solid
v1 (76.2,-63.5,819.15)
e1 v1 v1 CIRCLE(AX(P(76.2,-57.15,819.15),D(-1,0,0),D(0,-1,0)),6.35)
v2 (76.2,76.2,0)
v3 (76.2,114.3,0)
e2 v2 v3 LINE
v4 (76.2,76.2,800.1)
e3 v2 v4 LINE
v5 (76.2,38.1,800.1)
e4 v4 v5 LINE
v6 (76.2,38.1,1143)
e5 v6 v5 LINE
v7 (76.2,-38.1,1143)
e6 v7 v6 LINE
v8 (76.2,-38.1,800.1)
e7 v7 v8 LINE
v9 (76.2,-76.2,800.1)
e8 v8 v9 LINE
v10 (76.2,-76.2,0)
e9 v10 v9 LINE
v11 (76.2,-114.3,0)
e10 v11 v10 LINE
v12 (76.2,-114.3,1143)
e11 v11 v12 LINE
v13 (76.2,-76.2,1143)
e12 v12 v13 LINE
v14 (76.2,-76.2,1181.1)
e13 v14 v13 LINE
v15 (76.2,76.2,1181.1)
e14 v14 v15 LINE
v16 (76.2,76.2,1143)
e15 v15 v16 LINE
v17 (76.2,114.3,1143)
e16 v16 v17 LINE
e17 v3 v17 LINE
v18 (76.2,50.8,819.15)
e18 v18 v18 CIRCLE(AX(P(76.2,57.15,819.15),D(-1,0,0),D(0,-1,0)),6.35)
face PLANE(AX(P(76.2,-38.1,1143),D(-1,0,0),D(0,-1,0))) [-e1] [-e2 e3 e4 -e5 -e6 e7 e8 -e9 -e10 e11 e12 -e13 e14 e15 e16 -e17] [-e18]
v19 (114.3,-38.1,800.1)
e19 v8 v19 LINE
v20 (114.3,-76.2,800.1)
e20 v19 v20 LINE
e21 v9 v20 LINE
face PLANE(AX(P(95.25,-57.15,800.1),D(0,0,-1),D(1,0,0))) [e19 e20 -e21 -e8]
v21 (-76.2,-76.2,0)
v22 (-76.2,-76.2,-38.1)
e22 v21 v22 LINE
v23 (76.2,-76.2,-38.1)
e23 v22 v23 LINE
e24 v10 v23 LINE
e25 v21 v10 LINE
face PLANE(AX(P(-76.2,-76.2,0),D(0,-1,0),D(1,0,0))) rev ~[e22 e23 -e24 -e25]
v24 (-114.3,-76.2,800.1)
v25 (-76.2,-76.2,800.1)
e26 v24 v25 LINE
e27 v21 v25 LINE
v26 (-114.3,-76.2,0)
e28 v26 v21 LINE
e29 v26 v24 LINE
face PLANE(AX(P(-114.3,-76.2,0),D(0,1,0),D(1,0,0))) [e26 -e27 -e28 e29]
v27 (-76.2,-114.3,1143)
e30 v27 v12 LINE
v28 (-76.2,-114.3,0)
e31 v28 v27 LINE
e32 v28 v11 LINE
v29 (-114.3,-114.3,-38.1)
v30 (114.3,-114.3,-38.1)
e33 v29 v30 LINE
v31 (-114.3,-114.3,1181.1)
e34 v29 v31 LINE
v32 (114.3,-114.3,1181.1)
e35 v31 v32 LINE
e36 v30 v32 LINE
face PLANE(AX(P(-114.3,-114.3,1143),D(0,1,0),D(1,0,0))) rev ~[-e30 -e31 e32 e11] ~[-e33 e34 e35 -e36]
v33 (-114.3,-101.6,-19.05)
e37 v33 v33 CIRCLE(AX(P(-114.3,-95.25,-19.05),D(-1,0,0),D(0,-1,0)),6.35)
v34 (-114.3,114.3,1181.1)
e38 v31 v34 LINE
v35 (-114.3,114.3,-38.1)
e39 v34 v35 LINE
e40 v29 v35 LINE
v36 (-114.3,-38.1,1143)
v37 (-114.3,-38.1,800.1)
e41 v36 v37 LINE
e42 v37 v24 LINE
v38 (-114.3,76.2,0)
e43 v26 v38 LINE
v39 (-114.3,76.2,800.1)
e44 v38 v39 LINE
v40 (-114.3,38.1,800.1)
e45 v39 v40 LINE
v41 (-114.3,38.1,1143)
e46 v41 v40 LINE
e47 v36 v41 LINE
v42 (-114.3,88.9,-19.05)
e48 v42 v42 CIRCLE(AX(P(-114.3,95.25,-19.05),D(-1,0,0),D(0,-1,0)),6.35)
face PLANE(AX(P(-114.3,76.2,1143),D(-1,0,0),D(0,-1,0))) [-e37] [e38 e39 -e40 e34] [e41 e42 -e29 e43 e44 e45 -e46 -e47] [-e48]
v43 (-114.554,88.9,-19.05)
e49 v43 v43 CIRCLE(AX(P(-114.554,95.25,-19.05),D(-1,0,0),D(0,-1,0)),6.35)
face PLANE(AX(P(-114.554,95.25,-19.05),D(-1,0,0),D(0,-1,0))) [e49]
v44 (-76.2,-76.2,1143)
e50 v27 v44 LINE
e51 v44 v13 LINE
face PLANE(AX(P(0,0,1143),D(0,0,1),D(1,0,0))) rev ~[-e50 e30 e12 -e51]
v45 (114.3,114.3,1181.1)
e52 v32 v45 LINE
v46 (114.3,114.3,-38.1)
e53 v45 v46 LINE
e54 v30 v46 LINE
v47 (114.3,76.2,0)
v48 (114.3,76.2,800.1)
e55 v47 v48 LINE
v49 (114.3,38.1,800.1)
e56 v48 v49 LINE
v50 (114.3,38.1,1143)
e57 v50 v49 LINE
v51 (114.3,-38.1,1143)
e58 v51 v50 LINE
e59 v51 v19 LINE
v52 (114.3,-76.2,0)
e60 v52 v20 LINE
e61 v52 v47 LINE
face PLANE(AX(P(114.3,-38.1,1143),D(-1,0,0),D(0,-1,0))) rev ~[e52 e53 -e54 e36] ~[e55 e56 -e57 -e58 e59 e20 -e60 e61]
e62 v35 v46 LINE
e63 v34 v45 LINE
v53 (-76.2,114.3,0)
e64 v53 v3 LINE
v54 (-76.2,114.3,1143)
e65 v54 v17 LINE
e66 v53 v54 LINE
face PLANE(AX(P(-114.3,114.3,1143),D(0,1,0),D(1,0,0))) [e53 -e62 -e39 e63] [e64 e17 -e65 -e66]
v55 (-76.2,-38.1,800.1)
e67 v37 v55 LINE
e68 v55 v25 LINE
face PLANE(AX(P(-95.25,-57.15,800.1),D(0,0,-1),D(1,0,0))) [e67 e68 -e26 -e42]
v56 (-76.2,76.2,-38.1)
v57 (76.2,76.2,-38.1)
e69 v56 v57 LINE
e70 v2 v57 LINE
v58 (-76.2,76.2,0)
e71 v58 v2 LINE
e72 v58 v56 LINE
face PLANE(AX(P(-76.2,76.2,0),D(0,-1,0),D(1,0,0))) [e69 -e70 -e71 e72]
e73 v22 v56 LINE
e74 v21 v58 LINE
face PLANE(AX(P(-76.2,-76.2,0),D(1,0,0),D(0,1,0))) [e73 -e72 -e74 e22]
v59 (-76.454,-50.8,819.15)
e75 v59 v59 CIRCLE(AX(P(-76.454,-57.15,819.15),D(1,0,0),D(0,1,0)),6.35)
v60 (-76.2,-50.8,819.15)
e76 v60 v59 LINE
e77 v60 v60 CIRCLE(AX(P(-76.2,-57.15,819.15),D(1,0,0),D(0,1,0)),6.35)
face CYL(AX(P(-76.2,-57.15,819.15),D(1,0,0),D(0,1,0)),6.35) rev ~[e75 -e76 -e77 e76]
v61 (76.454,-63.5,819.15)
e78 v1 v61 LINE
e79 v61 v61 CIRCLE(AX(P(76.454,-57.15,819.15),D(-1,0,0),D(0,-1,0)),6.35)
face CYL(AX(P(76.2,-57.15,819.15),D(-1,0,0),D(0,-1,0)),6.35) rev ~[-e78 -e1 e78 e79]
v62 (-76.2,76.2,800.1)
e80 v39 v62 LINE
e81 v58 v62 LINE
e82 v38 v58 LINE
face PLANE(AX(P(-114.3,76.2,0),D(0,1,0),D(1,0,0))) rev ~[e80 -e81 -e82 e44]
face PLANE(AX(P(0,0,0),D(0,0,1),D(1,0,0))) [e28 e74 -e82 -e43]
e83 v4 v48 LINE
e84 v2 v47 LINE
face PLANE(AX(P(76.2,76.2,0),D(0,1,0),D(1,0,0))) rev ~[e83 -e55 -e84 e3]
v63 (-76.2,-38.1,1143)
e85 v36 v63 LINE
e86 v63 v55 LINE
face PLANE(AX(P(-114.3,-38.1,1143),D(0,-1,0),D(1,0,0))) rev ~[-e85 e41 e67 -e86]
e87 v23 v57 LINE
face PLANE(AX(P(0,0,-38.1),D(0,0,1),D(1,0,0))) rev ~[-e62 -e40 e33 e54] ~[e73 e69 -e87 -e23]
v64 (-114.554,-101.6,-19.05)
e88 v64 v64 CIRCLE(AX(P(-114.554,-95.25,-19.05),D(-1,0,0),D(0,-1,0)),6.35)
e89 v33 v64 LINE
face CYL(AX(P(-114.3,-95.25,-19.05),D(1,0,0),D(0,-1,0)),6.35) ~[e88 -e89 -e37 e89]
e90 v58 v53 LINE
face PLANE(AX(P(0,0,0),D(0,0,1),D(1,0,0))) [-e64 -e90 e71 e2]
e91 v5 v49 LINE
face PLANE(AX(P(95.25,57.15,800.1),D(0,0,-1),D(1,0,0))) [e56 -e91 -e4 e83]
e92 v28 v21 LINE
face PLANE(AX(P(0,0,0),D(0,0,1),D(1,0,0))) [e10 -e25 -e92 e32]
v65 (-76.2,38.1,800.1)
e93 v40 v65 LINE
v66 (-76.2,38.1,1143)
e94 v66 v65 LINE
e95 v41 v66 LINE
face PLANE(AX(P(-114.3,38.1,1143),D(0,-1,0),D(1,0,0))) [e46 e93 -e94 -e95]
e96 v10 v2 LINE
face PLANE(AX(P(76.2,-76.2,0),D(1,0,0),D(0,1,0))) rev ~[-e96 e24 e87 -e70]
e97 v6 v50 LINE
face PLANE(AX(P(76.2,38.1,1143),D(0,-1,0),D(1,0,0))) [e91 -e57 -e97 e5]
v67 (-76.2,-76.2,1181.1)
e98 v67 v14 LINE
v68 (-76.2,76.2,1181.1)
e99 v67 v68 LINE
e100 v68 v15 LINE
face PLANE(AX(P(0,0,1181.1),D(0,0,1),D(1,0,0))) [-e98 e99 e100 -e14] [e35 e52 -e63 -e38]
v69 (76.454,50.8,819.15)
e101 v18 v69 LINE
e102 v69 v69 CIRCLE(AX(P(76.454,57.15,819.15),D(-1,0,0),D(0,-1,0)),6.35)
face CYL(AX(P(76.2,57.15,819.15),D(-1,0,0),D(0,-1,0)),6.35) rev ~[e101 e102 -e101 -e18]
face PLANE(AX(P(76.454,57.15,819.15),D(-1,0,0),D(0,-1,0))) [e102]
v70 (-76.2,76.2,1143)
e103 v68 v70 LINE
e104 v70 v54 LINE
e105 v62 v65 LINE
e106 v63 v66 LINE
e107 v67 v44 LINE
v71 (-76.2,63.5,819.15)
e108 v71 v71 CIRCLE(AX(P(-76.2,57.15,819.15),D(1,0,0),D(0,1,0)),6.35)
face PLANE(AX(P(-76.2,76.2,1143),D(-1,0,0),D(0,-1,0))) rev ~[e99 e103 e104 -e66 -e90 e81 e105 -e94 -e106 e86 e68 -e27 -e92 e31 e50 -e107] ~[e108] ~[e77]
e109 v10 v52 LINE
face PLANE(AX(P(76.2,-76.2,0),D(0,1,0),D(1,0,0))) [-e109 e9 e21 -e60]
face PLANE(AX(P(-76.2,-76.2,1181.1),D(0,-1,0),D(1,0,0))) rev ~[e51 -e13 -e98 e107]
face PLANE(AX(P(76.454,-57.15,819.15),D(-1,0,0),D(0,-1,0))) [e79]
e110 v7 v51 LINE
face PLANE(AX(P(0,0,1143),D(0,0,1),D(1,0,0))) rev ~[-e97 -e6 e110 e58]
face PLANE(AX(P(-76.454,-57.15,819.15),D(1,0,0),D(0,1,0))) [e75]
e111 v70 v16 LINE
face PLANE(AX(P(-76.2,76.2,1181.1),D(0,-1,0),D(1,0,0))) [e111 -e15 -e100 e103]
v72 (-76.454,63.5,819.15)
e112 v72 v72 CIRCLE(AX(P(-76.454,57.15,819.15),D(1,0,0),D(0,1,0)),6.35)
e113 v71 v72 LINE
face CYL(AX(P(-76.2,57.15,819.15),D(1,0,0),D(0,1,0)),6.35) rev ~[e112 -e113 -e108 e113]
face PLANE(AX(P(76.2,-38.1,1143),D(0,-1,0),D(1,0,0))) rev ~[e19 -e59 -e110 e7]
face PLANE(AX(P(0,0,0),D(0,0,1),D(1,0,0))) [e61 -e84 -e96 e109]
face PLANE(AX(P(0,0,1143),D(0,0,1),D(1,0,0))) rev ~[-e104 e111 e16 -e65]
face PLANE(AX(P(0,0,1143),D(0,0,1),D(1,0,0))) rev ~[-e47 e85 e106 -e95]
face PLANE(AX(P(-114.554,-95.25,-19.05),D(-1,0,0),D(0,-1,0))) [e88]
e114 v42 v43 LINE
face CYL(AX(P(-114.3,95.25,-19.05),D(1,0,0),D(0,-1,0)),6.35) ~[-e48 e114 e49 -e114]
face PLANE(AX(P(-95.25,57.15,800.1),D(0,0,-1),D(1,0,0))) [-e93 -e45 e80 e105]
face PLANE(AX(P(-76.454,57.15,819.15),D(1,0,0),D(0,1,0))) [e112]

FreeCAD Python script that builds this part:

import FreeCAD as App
import Part
import Sketcher
Q = App.Units.Quantity


def add_polygon(sketch, points):
    """Adds a closed chain of lines whose ends are joined by coincident constraints."""
    first, n = sketch.GeometryCount, len(points)
    for a, b in zip(points, points[1:] + points[:1]):
        sketch.addGeometry(Part.LineSegment(App.Vector(*a, 0), App.Vector(*b, 0)), False)
    for i in range(n):
        sketch.addConstraint(Sketcher.Constraint("Coincident", first + i, 2, first + (i + 1) % n, 1))

doc = App.newDocument("Part")
body = doc.addObject("PartDesign::Body", "Body")

sketch1 = doc.addObject("Sketcher::SketchObject", "Sketch")
body.addObject(sketch1)
sketch1.AttachmentSupport = (doc.XY_Plane, [""])
sketch1.MapMode = "FlatFace"
add_polygon(sketch1, [(-114, 114), (-114, -114), (114, -114), (114, 114)])
sketch1.addConstraint([
    Sketcher.Constraint("Vertical", 0),
    Sketcher.Constraint("Horizontal", 1),
    Sketcher.Constraint("Vertical", 2),
    Sketcher.Constraint("Horizontal", 3),
    Sketcher.Constraint("Symmetric", 0, 2, 2, 2, -1, 1),
    Sketcher.Constraint("Equal", 3, 0),
    Sketcher.Constraint("DistanceX", 1, 1, 1, 2, Q("9 in")),
])
pad1 = doc.addObject("PartDesign::Pad", "Pad")
body.addObject(pad1)
pad1.Profile = sketch1
pad1.Length = Q("1.5 in")
pad1.Reversed = True

sketch2 = doc.addObject("Sketcher::SketchObject", "Sketch001")
body.addObject(sketch2)
sketch2.AttachmentSupport = (doc.XY_Plane, [""])
sketch2.MapMode = "FlatFace"
add_polygon(sketch2, [(-76, 76), (-76, -76), (76, -76), (76, 76)])
sketch2.addConstraint([
    Sketcher.Constraint("Vertical", 0),
    Sketcher.Constraint("Horizontal", 1),
    Sketcher.Constraint("Vertical", 2),
    Sketcher.Constraint("Horizontal", 3),
    Sketcher.Constraint("Symmetric", 0, 2, 2, 2, -1, 1),
    Sketcher.Constraint("Equal", 3, 0),
    Sketcher.Constraint("DistanceX", 1, 1, 1, 2, Q("6 in")),
])
pocket1 = doc.addObject("PartDesign::Pocket", "Pocket")
body.addObject(pocket1)
pocket1.Profile = sketch2
pocket1.Length = Q("1.5 in")

sketch3 = doc.addObject("Sketcher::SketchObject", "Sketch002")
body.addObject(sketch3)
sketch3.AttachmentSupport = (doc.XY_Plane, [""])
sketch3.MapMode = "FlatFace"
add_polygon(sketch3, [(-114, 114), (-114, 76), (-76, 76), (-76, 114)])
add_polygon(sketch3, [(76, 114), (76, 76), (114, 76), (114, 114)])
add_polygon(sketch3, [(76, -76), (76, -114), (114, -114), (114, -76)])
add_polygon(sketch3, [(-114, -76), (-114, -114), (-76, -114), (-76, -76)])
sketch3.addConstraint([
    Sketcher.Constraint("Vertical", 0),
    Sketcher.Constraint("Horizontal", 1),
    Sketcher.Constraint("Vertical", 2),
    Sketcher.Constraint("Horizontal", 3),
    Sketcher.Constraint("Vertical", 4),
    Sketcher.Constraint("Horizontal", 5),
    Sketcher.Constraint("Vertical", 6),
    Sketcher.Constraint("Horizontal", 7),
    Sketcher.Constraint("Vertical", 8),
    Sketcher.Constraint("Horizontal", 9),
    Sketcher.Constraint("Vertical", 10),
    Sketcher.Constraint("Horizontal", 11),
    Sketcher.Constraint("Vertical", 12),
    Sketcher.Constraint("Horizontal", 13),
    Sketcher.Constraint("Vertical", 14),
    Sketcher.Constraint("Horizontal", 15),
    Sketcher.Constraint("Symmetric", 2, 2, 8, 2, -1, 1),
    Sketcher.Constraint("Symmetric", 0, 2, 10, 2, -1, 1),
    Sketcher.Constraint("Symmetric", 6, 2, 12, 2, -1, 1),
    Sketcher.Constraint("Symmetric", 4, 2, 14, 2, -1, 1),
    Sketcher.Constraint("Symmetric", 1, 2, 4, 2, -2),
    Sketcher.Constraint("Symmetric", 3, 2, 6, 2, -2),
    Sketcher.Constraint("Equal", 15, 0),
    Sketcher.Constraint("DistanceX", 1, 1, 1, 2, Q("1.5 in")),
    Sketcher.Constraint("DistanceY", -1, 1, 0, 2, Q("3 in")),
    Sketcher.Constraint("DistanceX", 1, 2, -1, 1, Q("3 in")),
])
pad2 = doc.addObject("PartDesign::Pad", "Pad001")
body.addObject(pad2)
pad2.Profile = sketch3
pad2.Length = Q("45 in")

sketch4 = doc.addObject("Sketcher::SketchObject", "Sketch003")
body.addObject(sketch4)
sketch4.AttachmentSupport = (doc.XY_Plane, [""])
sketch4.MapMode = "FlatFace"
sketch4.AttachmentOffset = App.Placement(App.Vector(0, 0, 45 * 25.4), App.Rotation())
add_polygon(sketch4, [(-114, 114), (-114, -114), (114, -114), (114, 114)])
sketch4.addConstraint([
    Sketcher.Constraint("Vertical", 0),
    Sketcher.Constraint("Horizontal", 1),
    Sketcher.Constraint("Vertical", 2),
    Sketcher.Constraint("Horizontal", 3),
    Sketcher.Constraint("Symmetric", 0, 2, 2, 2, -1, 1),
    Sketcher.Constraint("Equal", 3, 0),
    Sketcher.Constraint("DistanceX", 1, 1, 1, 2, Q("9 in")),
])
pad3 = doc.addObject("PartDesign::Pad", "Pad002")
body.addObject(pad3)
pad3.Profile = sketch4
pad3.Length = Q("1.5 in")

sketch5 = doc.addObject("Sketcher::SketchObject", "Sketch004")
body.addObject(sketch5)
sketch5.AttachmentSupport = (doc.XY_Plane, [""])
sketch5.MapMode = "FlatFace"
sketch5.AttachmentOffset = App.Placement(App.Vector(0, 0, 46.5 * 25.4), App.Rotation())
add_polygon(sketch5, [(-76, 76), (-76, -76), (76, -76), (76, 76)])
sketch5.addConstraint([
    Sketcher.Constraint("Vertical", 0),
    Sketcher.Constraint("Horizontal", 1),
    Sketcher.Constraint("Vertical", 2),
    Sketcher.Constraint("Horizontal", 3),
    Sketcher.Constraint("Symmetric", 0, 2, 2, 2, -1, 1),
    Sketcher.Constraint("Equal", 3, 0),
    Sketcher.Constraint("DistanceX", 1, 1, 1, 2, Q("6 in")),
])
pocket2 = doc.addObject("PartDesign::Pocket", "Pocket001")
body.addObject(pocket2)
pocket2.Profile = sketch5
pocket2.Length = Q("1.5 in")

sketch6 = doc.addObject("Sketcher::SketchObject", "Sketch005")
body.addObject(sketch6)
sketch6.AttachmentSupport = (doc.XY_Plane, [""])
sketch6.MapMode = "FlatFace"
sketch6.AttachmentOffset = App.Placement(App.Vector(0, 0, 45 * 25.4), App.Rotation())
add_polygon(sketch6, [(76, -76), (76, -38), (114, -38), (114, -76)])
add_polygon(sketch6, [(76, 38), (76, 76), (114, 76), (114, 38)])
sketch6.addConstraint([
    Sketcher.Constraint("Vertical", 0),
    Sketcher.Constraint("Horizontal", 1),
    Sketcher.Constraint("Vertical", 2),
    Sketcher.Constraint("Horizontal", 3),
    Sketcher.Constraint("Vertical", 4),
    Sketcher.Constraint("Horizontal", 5),
    Sketcher.Constraint("Vertical", 6),
    Sketcher.Constraint("Horizontal", 7),
    Sketcher.Constraint("Symmetric", 3, 2, 4, 2, -1),
    Sketcher.Constraint("Symmetric", 1, 2, 6, 2, -1),
    Sketcher.Constraint("Equal", 7, 0),
    Sketcher.Constraint("DistanceX", 1, 1, 1, 2, Q("1.5 in")),
    Sketcher.Constraint("DistanceX", -1, 1, 0, 2, Q("3 in")),
    Sketcher.Constraint("DistanceY", 2, 2, -1, 1, Q("3 in")),
])
pad4 = doc.addObject("PartDesign::Pad", "Pad003")
body.addObject(pad4)
pad4.Profile = sketch6
pad4.Length = Q("13.5 in")
pad4.Reversed = True

sketch7 = doc.addObject("Sketcher::SketchObject", "Sketch006")
body.addObject(sketch7)
sketch7.AttachmentSupport = (doc.XY_Plane, [""])
sketch7.MapMode = "FlatFace"
sketch7.AttachmentOffset = App.Placement(App.Vector(0, 0, 45 * 25.4), App.Rotation())
add_polygon(sketch7, [(-114, 38), (-114, 76), (-76, 76), (-76, 38)])
add_polygon(sketch7, [(-114, -76), (-114, -38), (-76, -38), (-76, -76)])
sketch7.addConstraint([
    Sketcher.Constraint("Vertical", 0),
    Sketcher.Constraint("Horizontal", 1),
    Sketcher.Constraint("Vertical", 2),
    Sketcher.Constraint("Horizontal", 3),
    Sketcher.Constraint("Vertical", 4),
    Sketcher.Constraint("Horizontal", 5),
    Sketcher.Constraint("Vertical", 6),
    Sketcher.Constraint("Horizontal", 7),
    Sketcher.Constraint("Symmetric", 3, 2, 4, 2, -1),
    Sketcher.Constraint("Symmetric", 1, 2, 6, 2, -1),
    Sketcher.Constraint("Equal", 7, 0),
    Sketcher.Constraint("DistanceX", 1, 1, 1, 2, Q("1.5 in")),
    Sketcher.Constraint("DistanceY", -1, 1, 0, 2, Q("3 in")),
    Sketcher.Constraint("DistanceX", 1, 2, -1, 1, Q("3 in")),
])
pad5 = doc.addObject("PartDesign::Pad", "Pad004")
body.addObject(pad5)
pad5.Profile = sketch7
pad5.Length = Q("13.5 in")
pad5.Reversed = True

sketch8 = doc.addObject("Sketcher::SketchObject", "Sketch007")
body.addObject(sketch8)
sketch8.AttachmentSupport = (doc.YZ_Plane, [""])
sketch8.MapMode = "FlatFace"
sketch8.AttachmentOffset = App.Placement(App.Vector(0, 0, -4.5 * 25.4), App.Rotation())
sketch8.addGeometry([
    Part.Circle(App.Vector(95, -19, 0), App.Vector(0, 0, 1), 6),
    Part.Circle(App.Vector(-95, -19, 0), App.Vector(0, 0, 1), 6),
], False)
sketch8.addConstraint([
    Sketcher.Constraint("Equal", 0, 1),
    Sketcher.Constraint("Symmetric", 0, 3, 1, 3, -2),
    Sketcher.Constraint("Diameter", 0, Q("0.5 in")),
    Sketcher.Constraint("DistanceX", 1, 3, 0, 3, Q("7.5 in")),
    Sketcher.Constraint("DistanceY", 0, 3, -1, 1, Q("0.75 in")),
])
pad6 = doc.addObject("PartDesign::Pad", "Pad005")
body.addObject(pad6)
pad6.Profile = sketch8
pad6.Length = Q("0.01 in")
pad6.Reversed = True

sketch9 = doc.addObject("Sketcher::SketchObject", "Sketch008")
body.addObject(sketch9)
sketch9.AttachmentSupport = (doc.YZ_Plane, [""])
sketch9.MapMode = "FlatFace"
sketch9.AttachmentOffset = App.Placement(App.Vector(0, 0, -3 * 25.4), App.Rotation())
sketch9.addGeometry([
    Part.Circle(App.Vector(-57, 819, 0), App.Vector(0, 0, 1), 6),
    Part.Circle(App.Vector(57, 819, 0), App.Vector(0, 0, 1), 6),
], False)
sketch9.addConstraint([
    Sketcher.Constraint("Equal", 0, 1),
    Sketcher.Constraint("Symmetric", 0, 3, 1, 3, -2),
    Sketcher.Constraint("Diameter", 0, Q("0.5 in")),
    Sketcher.Constraint("DistanceX", 0, 3, 1, 3, Q("4.5 in")),
    Sketcher.Constraint("DistanceY", -1, 1, 0, 3, Q("32.25 in")),
])
pocket3 = doc.addObject("PartDesign::Pocket", "Pocket002")
body.addObject(pocket3)
pocket3.Profile = sketch9
pocket3.Length = Q("0.01 in")

sketch10 = doc.addObject("Sketcher::SketchObject", "Sketch009")
body.addObject(sketch10)
sketch10.AttachmentSupport = (doc.YZ_Plane, [""])
sketch10.MapMode = "FlatFace"
sketch10.AttachmentOffset = App.Placement(App.Vector(0, 0, 3 * 25.4), App.Rotation())
sketch10.addGeometry([
    Part.Circle(App.Vector(57, 819, 0), App.Vector(0, 0, 1), 6),
    Part.Circle(App.Vector(-57, 819, 0), App.Vector(0, 0, 1), 6),
], False)
sketch10.addConstraint([
    Sketcher.Constraint("Equal", 0, 1),
    Sketcher.Constraint("Symmetric", 0, 3, 1, 3, -2),
    Sketcher.Constraint("Diameter", 0, Q("0.5 in")),
    Sketcher.Constraint("DistanceX", 1, 3, 0, 3, Q("4.5 in")),
    Sketcher.Constraint("DistanceY", -1, 1, 0, 3, Q("32.25 in")),
])
pocket4 = doc.addObject("PartDesign::Pocket", "Pocket003")
body.addObject(pocket4)
pocket4.Profile = sketch10
pocket4.Length = Q("0.01 in")
pocket4.Reversed = True

doc.recompute()
